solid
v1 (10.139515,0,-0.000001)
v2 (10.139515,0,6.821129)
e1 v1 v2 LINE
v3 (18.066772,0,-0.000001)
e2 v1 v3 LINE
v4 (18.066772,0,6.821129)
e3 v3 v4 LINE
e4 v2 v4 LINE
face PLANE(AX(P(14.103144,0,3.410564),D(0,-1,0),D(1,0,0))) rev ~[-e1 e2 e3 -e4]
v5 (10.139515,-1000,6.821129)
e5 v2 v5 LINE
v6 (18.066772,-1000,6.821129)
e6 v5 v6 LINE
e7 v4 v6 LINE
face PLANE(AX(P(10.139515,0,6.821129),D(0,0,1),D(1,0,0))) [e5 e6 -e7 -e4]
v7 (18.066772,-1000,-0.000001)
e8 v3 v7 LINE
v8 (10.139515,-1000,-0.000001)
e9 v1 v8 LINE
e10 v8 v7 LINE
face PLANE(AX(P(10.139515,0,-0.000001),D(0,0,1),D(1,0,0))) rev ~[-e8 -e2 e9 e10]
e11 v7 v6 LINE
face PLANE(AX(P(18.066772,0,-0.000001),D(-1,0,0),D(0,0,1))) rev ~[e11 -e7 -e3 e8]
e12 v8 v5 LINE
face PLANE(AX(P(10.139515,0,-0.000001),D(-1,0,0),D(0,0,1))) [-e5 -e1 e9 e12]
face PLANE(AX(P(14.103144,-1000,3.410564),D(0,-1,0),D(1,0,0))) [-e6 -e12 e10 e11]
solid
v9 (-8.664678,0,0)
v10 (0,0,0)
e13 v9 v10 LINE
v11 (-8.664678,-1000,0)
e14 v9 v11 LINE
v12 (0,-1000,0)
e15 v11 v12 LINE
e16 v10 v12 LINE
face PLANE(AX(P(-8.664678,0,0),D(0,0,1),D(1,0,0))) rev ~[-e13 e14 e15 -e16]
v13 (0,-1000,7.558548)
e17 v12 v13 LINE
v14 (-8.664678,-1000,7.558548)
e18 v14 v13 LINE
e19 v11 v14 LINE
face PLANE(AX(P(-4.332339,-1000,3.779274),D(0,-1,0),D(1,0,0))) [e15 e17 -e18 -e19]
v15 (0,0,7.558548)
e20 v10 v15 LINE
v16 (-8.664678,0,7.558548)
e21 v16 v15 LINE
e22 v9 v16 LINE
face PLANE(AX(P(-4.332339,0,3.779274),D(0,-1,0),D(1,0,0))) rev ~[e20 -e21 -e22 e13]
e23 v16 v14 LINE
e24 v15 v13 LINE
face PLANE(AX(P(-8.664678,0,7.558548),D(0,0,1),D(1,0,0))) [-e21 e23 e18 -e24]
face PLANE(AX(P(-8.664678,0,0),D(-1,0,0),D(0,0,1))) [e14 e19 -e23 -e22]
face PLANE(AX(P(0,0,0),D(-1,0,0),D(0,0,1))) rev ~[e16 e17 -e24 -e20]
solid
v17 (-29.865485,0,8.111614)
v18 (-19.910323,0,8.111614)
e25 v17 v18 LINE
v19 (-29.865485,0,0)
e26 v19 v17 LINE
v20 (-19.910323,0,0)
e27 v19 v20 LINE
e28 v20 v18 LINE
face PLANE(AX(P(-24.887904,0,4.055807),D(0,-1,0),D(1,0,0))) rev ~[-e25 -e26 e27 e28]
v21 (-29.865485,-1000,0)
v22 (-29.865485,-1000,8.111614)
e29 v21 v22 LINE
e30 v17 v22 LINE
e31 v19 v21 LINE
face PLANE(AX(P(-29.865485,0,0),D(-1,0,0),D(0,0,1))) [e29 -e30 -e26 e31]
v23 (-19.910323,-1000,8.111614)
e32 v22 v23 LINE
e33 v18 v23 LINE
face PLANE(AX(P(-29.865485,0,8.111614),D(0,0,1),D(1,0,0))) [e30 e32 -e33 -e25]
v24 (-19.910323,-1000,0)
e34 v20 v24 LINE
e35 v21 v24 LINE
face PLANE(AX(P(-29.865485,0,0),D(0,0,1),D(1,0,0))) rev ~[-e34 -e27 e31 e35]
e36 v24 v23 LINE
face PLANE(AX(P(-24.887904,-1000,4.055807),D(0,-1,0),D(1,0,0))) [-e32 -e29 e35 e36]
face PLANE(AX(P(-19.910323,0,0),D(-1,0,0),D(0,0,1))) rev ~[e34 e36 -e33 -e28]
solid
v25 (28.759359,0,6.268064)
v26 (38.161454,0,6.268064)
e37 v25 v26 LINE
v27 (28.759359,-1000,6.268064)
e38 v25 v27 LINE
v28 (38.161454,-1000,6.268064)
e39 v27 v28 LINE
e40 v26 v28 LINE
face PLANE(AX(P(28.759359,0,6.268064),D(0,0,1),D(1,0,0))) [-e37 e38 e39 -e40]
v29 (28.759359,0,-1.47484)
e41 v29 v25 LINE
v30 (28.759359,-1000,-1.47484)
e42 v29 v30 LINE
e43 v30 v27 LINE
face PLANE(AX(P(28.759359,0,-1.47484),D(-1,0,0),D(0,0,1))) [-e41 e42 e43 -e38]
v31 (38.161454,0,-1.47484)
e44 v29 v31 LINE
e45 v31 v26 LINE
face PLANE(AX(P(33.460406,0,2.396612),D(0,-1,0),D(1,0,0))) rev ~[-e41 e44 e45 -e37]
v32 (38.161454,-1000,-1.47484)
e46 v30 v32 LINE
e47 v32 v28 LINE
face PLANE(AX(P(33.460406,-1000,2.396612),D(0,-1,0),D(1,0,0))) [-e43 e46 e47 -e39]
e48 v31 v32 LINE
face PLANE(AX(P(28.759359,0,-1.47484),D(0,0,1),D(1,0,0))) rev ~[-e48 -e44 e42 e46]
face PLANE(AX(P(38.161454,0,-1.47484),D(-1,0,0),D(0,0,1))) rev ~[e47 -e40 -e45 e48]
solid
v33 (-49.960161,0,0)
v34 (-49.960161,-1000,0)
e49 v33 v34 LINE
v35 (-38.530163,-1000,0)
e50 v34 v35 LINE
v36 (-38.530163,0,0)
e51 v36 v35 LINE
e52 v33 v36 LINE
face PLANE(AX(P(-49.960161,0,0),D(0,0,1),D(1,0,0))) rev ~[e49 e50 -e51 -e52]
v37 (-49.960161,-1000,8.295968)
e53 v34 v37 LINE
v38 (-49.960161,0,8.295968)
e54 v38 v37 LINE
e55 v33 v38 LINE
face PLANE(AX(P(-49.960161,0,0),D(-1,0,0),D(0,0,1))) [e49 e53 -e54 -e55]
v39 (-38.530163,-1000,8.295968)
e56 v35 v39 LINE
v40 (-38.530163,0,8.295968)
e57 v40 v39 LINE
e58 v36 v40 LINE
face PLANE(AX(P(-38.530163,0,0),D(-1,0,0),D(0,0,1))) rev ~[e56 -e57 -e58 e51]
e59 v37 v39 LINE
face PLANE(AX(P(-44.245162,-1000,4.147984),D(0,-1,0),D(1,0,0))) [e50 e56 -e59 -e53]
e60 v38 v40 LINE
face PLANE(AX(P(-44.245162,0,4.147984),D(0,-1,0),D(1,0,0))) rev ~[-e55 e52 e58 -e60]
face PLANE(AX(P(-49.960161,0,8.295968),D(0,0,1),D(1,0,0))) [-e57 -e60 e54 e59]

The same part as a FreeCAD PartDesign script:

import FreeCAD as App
import Part
import Sketcher
from FreeCAD import Vector


def add_polygon(sketch, points):
    """Adds a closed chain of lines whose ends are joined by coincident constraints."""
    first, n = sketch.GeometryCount, len(points)
    for a, b in zip(points, points[1:] + points[:1]):
        sketch.addGeometry(Part.LineSegment(App.Vector(*a, 0), App.Vector(*b, 0)), False)
    for i in range(n):
        sketch.addConstraint(Sketcher.Constraint("Coincident", first + i, 2, first + (i + 1) % n, 1))

doc = App.newDocument("Part")
body = doc.addObject("PartDesign::Body", "Body")
body.AllowCompound = True

# Sketch on XZ plane
sketch1 = doc.addObject("Sketcher::SketchObject", "Sketch")
body.addObject(sketch1)
sketch1.AttachmentSupport = (doc.XZ_Plane, [""])
sketch1.MapMode = "FlatFace"
add_polygon(sketch1, [(-49.960161, 8.295968), (-49.960161, 0), (-38.530163, 0), (-38.530163, 8.295968)])  # lines 0-3
add_polygon(sketch1, [(-29.865485, 8.111614), (-29.865485, 0), (-19.910323, 0), (-19.910323, 8.111614)])  # lines 4-7
add_polygon(sketch1, [(-8.664678, 7.558548), (-8.664678, 0), (0, 0), (0, 7.558548)])  # lines 8-11
add_polygon(sketch1, [(10.139515, 6.821129), (10.139515, 0), (18.066772, 0), (18.066772, 6.821129)])  # lines 12-15
add_polygon(sketch1, [(28.759359, 6.268064), (28.759359, -1.47484), (38.161454, -1.47484), (38.161454, 6.268064)])  # lines 16-19
sketch1.addConstraint(Sketcher.Constraint("Vertical", 0))
sketch1.addConstraint(Sketcher.Constraint("Horizontal", 1))
sketch1.addConstraint(Sketcher.Constraint("Vertical", 2))
sketch1.addConstraint(Sketcher.Constraint("Horizontal", 3))
sketch1.addConstraint(Sketcher.Constraint("Vertical", 4))
sketch1.addConstraint(Sketcher.Constraint("Horizontal", 5))
sketch1.addConstraint(Sketcher.Constraint("Vertical", 6))
sketch1.addConstraint(Sketcher.Constraint("Horizontal", 7))
sketch1.addConstraint(Sketcher.Constraint("Vertical", 8))
sketch1.addConstraint(Sketcher.Constraint("Horizontal", 9))
sketch1.addConstraint(Sketcher.Constraint("Vertical", 10))
sketch1.addConstraint(Sketcher.Constraint("Horizontal", 11))
sketch1.addConstraint(Sketcher.Constraint("Vertical", 12))
sketch1.addConstraint(Sketcher.Constraint("Horizontal", 13))
sketch1.addConstraint(Sketcher.Constraint("Vertical", 14))
sketch1.addConstraint(Sketcher.Constraint("Horizontal", 15))
sketch1.addConstraint(Sketcher.Constraint("Vertical", 16))
sketch1.addConstraint(Sketcher.Constraint("Horizontal", 17))
sketch1.addConstraint(Sketcher.Constraint("Vertical", 18))
sketch1.addConstraint(Sketcher.Constraint("Horizontal", 19))
sketch1.addConstraint(Sketcher.Constraint("Coincident", 9, 2, -1, 1))
sketch1.addConstraint(Sketcher.Constraint("PointOnObject", 0, 2, -1))
sketch1.addConstraint(Sketcher.Constraint("PointOnObject", 4, 2, -1))
sketch1.addConstraint(Sketcher.Constraint("PointOnObject", 12, 2, -1))
sketch1.addConstraint(Sketcher.Constraint("DistanceX", 1, 1, 1, 2, 11.429999))
sketch1.addConstraint(Sketcher.Constraint("DistanceX", 5, 1, 5, 2, 9.955162))
sketch1.addConstraint(Sketcher.Constraint("DistanceY", 12, 2, 12, 1, 6.821129))
sketch1.addConstraint(Sketcher.Constraint("DistanceX", 9, 1, 9, 2, 8.664678))
sketch1.addConstraint(Sketcher.Constraint("DistanceX", 13, 1, 13, 2, 7.927257))
sketch1.addConstraint(Sketcher.Constraint("DistanceX", 17, 1, 17, 2, 9.402095))
sketch1.addConstraint(Sketcher.Constraint("DistanceY", 0, 2, 0, 1, 8.295968))
sketch1.addConstraint(Sketcher.Constraint("DistanceY", 4, 2, 4, 1, 8.111613))
sketch1.addConstraint(Sketcher.Constraint("DistanceY", 8, 2, 8, 1, 7.558548))
sketch1.addConstraint(Sketcher.Constraint("DistanceY", 16, 2, 16, 1, 7.742903))
sketch1.addConstraint(Sketcher.Constraint("DistanceX", 0, 2, -1, 1, 49.960161))
sketch1.addConstraint(Sketcher.Constraint("DistanceX", -1, 1, 16, 2, 28.759359))
sketch1.addConstraint(Sketcher.Constraint("DistanceY", 16, 2, -1, 1, 1.47484))
sketch1.addConstraint(Sketcher.Constraint("DistanceX", 1, 2, 5, 2, 18.61984))
sketch1.addConstraint(Sketcher.Constraint("DistanceX", 5, 2, 12, 2, 30.049838))
pad1 = doc.addObject("PartDesign::Pad", "Pad")
body.addObject(pad1)
pad1.Profile = sketch1
pad1.Length = 1000

doc.recompute()
